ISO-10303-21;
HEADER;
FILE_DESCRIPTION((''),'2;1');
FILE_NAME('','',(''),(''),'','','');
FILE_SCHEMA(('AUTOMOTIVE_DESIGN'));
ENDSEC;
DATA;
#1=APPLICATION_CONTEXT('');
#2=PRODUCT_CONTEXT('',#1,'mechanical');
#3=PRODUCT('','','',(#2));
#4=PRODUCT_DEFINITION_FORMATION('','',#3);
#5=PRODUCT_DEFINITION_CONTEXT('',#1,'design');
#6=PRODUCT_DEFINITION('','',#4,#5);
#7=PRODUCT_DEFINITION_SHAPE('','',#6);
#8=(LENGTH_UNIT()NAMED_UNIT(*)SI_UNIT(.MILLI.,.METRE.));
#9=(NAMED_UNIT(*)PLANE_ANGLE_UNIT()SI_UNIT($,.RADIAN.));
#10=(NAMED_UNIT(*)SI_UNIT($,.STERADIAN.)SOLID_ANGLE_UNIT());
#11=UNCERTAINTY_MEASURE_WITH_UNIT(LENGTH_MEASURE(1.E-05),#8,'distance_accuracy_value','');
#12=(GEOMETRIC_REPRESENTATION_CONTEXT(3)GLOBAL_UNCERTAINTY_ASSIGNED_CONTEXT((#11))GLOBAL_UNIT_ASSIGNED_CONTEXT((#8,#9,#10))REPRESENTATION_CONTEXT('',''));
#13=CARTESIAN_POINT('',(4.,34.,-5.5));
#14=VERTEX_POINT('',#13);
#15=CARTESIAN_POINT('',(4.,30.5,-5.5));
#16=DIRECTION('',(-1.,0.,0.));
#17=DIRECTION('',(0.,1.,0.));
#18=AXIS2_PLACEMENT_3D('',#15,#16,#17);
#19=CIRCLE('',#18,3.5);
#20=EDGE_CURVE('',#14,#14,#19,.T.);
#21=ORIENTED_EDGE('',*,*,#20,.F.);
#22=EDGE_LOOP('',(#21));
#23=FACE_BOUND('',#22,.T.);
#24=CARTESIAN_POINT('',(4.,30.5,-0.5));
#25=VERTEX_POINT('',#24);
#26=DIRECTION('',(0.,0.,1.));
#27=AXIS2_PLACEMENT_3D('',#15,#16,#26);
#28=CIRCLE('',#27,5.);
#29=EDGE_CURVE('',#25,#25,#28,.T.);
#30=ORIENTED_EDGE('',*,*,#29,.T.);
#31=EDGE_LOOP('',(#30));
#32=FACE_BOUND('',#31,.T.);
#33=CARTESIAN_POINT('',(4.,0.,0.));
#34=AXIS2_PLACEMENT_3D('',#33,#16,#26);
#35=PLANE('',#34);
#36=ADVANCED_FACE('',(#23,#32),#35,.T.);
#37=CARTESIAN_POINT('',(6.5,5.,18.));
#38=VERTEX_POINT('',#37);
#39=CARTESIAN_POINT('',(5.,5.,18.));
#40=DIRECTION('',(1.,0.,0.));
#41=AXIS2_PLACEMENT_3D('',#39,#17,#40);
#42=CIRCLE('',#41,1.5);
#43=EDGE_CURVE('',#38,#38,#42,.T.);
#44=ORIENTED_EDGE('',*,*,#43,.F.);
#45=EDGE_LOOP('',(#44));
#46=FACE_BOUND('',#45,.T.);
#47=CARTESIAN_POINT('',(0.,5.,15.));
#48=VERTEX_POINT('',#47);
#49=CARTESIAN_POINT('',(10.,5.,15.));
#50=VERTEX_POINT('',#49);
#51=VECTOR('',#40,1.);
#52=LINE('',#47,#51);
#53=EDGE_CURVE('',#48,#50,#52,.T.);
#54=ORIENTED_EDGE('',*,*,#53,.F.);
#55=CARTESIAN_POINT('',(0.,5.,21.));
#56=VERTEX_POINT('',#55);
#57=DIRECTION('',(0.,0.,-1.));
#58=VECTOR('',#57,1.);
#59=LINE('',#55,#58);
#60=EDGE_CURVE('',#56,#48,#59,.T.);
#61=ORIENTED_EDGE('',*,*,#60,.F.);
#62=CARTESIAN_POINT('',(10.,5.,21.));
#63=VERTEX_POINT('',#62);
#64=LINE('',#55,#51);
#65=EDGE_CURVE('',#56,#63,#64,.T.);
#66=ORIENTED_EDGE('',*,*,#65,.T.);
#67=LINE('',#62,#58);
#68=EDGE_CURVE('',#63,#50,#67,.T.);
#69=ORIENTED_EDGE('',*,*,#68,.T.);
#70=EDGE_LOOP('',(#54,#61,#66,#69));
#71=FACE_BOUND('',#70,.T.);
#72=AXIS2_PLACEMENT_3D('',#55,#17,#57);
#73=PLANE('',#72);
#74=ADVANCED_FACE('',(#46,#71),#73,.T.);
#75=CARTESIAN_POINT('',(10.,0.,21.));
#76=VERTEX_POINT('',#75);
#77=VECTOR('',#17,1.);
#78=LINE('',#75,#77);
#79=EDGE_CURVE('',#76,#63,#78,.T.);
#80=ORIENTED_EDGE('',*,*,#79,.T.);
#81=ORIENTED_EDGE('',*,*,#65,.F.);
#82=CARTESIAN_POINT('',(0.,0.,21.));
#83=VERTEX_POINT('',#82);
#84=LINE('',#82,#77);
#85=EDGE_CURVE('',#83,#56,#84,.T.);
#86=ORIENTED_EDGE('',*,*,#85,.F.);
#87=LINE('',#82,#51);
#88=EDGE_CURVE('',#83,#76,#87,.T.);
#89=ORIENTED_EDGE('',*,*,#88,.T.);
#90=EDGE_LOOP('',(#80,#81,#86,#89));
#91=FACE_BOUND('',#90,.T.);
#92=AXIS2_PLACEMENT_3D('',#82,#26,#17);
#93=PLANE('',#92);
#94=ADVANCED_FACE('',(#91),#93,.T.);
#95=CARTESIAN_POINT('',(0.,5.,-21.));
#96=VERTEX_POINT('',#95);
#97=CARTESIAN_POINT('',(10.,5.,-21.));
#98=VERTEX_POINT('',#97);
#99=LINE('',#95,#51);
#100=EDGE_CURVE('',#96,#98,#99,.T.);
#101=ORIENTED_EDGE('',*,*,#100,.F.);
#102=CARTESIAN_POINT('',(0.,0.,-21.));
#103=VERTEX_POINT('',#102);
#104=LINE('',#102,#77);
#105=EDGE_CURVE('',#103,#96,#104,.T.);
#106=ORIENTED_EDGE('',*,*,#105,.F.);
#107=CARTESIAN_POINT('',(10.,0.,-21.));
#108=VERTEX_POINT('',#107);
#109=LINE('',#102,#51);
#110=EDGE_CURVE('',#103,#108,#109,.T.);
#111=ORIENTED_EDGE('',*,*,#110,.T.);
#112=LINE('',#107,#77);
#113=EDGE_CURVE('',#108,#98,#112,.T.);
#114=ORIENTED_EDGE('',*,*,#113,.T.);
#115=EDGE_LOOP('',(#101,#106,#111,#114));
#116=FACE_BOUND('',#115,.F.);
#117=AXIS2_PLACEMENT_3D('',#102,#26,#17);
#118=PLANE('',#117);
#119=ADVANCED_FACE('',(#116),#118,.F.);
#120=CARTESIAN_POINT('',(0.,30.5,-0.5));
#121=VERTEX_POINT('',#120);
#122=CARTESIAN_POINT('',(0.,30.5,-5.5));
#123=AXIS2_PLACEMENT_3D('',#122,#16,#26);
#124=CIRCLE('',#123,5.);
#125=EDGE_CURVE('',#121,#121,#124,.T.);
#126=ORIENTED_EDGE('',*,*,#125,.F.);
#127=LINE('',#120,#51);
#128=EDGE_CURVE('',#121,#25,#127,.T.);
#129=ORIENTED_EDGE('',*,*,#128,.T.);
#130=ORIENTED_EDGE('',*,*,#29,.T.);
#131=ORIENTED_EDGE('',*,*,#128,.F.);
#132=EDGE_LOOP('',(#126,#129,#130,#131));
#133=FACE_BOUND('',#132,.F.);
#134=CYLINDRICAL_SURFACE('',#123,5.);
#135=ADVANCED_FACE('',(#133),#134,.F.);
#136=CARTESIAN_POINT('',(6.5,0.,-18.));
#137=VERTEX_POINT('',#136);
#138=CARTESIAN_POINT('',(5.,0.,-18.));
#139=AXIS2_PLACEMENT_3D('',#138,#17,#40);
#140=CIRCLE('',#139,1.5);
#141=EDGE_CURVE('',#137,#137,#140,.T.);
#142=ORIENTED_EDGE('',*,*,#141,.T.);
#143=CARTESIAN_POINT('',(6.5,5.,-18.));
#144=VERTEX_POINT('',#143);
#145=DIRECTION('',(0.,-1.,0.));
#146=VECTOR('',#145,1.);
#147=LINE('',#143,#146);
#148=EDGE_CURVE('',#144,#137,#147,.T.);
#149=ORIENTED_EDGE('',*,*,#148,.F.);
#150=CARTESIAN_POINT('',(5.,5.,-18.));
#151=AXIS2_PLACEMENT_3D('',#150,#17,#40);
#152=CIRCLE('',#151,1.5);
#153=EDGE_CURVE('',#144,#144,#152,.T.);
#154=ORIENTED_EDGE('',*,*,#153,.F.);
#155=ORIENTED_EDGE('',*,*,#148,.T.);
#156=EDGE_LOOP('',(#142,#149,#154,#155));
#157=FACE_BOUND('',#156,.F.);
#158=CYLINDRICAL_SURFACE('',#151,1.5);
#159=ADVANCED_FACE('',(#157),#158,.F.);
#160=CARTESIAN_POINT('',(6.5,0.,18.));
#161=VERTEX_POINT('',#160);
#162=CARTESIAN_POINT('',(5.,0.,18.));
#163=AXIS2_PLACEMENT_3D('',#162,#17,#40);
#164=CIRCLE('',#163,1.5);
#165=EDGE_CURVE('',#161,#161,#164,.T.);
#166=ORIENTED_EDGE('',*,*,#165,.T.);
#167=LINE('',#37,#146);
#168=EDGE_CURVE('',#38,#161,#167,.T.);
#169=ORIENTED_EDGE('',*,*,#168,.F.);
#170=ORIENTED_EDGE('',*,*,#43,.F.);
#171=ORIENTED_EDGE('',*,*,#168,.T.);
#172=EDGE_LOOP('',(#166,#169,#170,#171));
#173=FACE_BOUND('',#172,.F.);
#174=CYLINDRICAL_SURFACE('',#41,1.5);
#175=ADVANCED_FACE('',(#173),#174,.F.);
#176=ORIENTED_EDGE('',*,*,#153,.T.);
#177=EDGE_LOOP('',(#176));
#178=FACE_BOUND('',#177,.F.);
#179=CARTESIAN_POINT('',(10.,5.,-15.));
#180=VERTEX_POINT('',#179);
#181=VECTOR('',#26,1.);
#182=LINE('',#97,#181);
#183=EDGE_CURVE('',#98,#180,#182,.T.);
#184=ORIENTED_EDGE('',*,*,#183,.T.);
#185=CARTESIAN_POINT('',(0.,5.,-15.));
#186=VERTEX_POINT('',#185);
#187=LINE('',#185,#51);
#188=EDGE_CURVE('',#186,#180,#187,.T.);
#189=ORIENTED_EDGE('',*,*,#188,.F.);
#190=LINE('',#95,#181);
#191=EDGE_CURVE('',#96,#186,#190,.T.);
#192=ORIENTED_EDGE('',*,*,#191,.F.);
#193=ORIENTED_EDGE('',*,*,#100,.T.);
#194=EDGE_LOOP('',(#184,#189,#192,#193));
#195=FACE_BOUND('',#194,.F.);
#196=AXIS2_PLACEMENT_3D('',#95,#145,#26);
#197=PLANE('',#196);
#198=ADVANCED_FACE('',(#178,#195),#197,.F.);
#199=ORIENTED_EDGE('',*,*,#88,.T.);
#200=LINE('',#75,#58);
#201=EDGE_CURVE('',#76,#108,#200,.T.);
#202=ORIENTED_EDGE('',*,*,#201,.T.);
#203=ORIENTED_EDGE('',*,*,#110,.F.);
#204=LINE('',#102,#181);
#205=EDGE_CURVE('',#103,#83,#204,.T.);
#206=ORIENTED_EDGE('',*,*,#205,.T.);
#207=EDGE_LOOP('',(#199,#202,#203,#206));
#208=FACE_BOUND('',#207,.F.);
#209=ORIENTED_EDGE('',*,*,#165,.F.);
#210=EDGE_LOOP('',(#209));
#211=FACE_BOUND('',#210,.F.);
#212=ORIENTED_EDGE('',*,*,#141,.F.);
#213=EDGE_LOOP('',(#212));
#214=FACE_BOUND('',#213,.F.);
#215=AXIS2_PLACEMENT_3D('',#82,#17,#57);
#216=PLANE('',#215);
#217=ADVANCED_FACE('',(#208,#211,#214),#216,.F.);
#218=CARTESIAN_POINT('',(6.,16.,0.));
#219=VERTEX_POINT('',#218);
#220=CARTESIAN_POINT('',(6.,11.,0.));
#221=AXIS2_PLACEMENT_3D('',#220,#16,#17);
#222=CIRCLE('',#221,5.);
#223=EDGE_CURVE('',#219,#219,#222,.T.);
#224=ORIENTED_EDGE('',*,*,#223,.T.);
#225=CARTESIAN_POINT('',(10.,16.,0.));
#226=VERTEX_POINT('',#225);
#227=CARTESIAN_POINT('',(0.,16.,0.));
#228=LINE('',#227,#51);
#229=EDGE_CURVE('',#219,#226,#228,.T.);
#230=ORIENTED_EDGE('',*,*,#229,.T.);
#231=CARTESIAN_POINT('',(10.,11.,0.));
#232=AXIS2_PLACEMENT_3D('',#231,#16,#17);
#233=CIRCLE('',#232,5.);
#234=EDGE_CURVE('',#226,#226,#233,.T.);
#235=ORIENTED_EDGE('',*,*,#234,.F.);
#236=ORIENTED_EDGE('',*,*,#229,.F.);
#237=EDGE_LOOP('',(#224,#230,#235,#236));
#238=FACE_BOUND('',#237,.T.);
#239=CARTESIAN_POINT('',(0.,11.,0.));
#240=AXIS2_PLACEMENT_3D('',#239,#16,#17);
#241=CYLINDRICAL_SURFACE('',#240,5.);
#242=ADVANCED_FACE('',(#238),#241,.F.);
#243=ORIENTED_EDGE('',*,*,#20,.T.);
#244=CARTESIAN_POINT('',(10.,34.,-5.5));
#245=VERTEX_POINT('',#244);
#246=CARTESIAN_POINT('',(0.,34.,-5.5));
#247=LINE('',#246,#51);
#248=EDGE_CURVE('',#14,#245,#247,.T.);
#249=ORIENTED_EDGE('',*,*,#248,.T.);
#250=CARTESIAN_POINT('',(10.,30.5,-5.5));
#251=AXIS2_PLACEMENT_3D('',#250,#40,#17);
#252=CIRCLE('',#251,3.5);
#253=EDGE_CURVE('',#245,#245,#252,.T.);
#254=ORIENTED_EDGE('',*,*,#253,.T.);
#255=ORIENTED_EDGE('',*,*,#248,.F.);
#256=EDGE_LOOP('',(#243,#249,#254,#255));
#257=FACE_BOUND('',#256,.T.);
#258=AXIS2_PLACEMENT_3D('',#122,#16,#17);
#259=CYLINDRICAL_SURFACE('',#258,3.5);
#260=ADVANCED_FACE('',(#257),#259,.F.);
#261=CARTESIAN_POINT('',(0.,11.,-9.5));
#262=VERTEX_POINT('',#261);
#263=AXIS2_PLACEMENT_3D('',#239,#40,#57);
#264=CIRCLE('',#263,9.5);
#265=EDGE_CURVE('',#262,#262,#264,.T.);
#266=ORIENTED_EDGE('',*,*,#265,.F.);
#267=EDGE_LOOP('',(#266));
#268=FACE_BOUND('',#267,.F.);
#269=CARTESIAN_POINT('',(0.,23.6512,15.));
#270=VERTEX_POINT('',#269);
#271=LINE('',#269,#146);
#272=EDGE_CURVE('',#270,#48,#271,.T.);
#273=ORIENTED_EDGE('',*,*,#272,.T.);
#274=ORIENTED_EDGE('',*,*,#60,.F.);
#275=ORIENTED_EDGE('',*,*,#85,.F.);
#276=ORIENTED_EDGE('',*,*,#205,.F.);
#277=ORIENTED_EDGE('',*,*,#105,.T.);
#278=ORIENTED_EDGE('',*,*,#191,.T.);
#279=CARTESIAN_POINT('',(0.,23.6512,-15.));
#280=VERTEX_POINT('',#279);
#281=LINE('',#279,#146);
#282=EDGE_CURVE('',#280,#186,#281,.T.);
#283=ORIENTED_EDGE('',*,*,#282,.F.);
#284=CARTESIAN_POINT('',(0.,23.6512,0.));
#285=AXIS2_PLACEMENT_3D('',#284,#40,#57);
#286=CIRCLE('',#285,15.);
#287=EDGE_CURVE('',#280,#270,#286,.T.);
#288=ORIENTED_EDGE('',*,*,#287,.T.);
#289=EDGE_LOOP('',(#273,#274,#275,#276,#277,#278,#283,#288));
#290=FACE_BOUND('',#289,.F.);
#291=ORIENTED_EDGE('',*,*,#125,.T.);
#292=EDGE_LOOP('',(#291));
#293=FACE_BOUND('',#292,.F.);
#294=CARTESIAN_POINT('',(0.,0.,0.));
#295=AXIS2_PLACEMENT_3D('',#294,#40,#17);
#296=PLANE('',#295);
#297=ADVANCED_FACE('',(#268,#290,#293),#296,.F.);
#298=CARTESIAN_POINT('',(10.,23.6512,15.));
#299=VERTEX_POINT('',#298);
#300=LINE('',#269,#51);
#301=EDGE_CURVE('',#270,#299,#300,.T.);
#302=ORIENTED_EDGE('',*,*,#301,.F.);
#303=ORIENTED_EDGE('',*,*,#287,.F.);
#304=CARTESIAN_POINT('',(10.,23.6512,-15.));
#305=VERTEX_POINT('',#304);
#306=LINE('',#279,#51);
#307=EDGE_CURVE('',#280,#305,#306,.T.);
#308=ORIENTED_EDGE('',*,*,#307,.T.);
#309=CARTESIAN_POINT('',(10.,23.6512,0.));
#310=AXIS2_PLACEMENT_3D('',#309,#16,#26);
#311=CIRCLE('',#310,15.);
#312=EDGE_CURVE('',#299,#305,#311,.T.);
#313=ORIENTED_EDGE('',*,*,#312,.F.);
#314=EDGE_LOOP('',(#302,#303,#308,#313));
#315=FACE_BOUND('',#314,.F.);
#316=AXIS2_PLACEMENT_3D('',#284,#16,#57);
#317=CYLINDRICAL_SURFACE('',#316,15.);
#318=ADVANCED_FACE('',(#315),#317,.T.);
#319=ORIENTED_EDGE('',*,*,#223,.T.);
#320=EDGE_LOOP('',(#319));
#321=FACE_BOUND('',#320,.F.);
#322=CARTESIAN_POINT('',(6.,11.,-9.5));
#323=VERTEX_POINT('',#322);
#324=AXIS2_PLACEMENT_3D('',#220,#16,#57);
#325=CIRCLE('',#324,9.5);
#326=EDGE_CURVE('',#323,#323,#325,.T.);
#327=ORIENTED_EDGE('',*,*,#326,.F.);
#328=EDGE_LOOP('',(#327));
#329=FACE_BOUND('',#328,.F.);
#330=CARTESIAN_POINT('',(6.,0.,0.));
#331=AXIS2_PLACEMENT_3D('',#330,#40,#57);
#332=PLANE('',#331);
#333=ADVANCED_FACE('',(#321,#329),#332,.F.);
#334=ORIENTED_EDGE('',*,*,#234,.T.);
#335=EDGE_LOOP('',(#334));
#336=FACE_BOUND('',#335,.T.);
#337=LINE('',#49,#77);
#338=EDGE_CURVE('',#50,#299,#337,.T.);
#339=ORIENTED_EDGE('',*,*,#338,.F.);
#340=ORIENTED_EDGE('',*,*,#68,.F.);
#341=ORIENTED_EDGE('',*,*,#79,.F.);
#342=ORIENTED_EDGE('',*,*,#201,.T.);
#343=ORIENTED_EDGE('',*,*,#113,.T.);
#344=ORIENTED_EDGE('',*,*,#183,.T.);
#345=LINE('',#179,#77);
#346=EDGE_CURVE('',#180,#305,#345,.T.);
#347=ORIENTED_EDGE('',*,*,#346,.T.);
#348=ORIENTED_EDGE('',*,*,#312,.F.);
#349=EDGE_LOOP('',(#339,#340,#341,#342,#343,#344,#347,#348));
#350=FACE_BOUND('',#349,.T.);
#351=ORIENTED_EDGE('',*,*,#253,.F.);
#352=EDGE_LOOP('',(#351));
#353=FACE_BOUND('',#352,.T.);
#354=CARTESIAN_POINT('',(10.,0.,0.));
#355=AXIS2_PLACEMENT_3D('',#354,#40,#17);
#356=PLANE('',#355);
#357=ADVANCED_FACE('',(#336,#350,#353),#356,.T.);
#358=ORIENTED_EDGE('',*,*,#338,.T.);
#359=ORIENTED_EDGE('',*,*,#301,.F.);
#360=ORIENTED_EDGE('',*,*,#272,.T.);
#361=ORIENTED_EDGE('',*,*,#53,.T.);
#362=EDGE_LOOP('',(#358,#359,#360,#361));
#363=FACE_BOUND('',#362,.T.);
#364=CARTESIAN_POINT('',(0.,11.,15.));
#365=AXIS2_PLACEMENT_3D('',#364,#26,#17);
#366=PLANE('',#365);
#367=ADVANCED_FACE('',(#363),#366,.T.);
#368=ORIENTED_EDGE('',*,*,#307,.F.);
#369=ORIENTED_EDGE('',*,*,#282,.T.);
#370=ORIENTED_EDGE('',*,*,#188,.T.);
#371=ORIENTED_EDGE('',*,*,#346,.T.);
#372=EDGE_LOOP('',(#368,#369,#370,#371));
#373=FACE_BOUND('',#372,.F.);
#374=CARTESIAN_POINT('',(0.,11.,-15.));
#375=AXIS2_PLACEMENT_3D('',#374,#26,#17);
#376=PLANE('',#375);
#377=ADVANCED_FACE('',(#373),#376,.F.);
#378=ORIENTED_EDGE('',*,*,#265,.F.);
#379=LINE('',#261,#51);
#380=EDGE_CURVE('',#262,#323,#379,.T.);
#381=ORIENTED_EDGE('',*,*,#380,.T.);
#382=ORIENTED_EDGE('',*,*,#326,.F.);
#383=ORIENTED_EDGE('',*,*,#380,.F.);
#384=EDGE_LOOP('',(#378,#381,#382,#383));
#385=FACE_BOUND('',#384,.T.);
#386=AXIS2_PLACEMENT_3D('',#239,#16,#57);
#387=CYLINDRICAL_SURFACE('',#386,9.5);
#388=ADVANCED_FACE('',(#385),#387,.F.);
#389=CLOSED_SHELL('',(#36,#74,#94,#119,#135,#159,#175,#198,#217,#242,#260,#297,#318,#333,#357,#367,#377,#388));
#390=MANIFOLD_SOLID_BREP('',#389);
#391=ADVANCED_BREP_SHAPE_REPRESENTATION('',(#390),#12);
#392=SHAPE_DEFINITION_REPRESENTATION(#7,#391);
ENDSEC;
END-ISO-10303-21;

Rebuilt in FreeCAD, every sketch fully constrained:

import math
import FreeCAD as App
import Part
import Sketcher

V = App.Vector

doc = App.newDocument("Part")
params = doc.addObject("Spreadsheet::Sheet", "Params")
for row, (alias, value) in enumerate([
    ("sketch1_diameter", "10 mm"),
    ("sketch1_diameter2", "7 mm"),
    ("sketch1_radius", "15 mm"),
    ("sketch1_width", "5 mm"),
    ("pad1_length", "10 mm"),
    ("sketch2_diameter", "19 mm"),
    ("pocket1_length", "6 mm"),
    ("sketch3_diameter", "3 mm"),
    ("pocket2_length", "5 mm"),
    ("sketch4_diameter", "10 mm"),
    ("pocket3_length", "4 mm"),
], start=1):
    params.set(f"A{row}", alias)
    params.set(f"B{row}", "=" + value)
    params.setAlias(f"B{row}", alias)

body = doc.addObject("PartDesign::Body", "Body")

# Sketch on YZ plane
sketch1 = doc.addObject("Sketcher::SketchObject", "Sketch")
body.addObject(sketch1)
sketch1.AttachmentSupport = (doc.YZ_Plane, [""])
sketch1.MapMode = "FlatFace"
sketch1.addGeometry(Part.LineSegment(V(23.6512, 15, 0), V(5, 15, 0)), False)
sketch1.addGeometry(Part.LineSegment(V(5, 15, 0), V(5, 21, 0)), False)
sketch1.addGeometry(Part.LineSegment(V(5, 21, 0), V(0, 21, 0)), False)
sketch1.addGeometry(Part.LineSegment(V(0, 21, 0), V(0, -21, 0)), False)
sketch1.addGeometry(Part.LineSegment(V(0, -21, 0), V(5, -21, 0)), False)
sketch1.addGeometry(Part.LineSegment(V(5, -21, 0), V(5, -15, 0)), False)
sketch1.addGeometry(Part.LineSegment(V(5, -15, 0), V(23.6512, -15, 0)), False)
sketch1.addGeometry(Part.ArcOfCircle(Part.Circle(V(23.6512, 0, 0), V(0, 0, 1), 15), math.radians(-90), math.radians(90)), False)
sketch1.addGeometry(Part.Circle(V(11, 0, 0), V(0, 0, 1), 5), False)
sketch1.addGeometry(Part.Circle(V(30.5, -5.5, 0), V(0, 0, 1), 3.5), False)
sketch1.addConstraint(Sketcher.Constraint("Coincident", 0, 2, 1, 1))
sketch1.addConstraint(Sketcher.Constraint("Coincident", 1, 2, 2, 1))
sketch1.addConstraint(Sketcher.Constraint("Coincident", 2, 2, 3, 1))
sketch1.addConstraint(Sketcher.Constraint("Coincident", 3, 2, 4, 1))
sketch1.addConstraint(Sketcher.Constraint("Coincident", 4, 2, 5, 1))
sketch1.addConstraint(Sketcher.Constraint("Coincident", 5, 2, 6, 1))
sketch1.addConstraint(Sketcher.Constraint("Tangent", 6, 2, 7, 1))
sketch1.addConstraint(Sketcher.Constraint("Tangent", 7, 2, 0, 1))
sketch1.addConstraint(Sketcher.Constraint("Horizontal", 0))
sketch1.addConstraint(Sketcher.Constraint("Vertical", 1))
sketch1.addConstraint(Sketcher.Constraint("Horizontal", 2))
sketch1.addConstraint(Sketcher.Constraint("Vertical", 3))
sketch1.addConstraint(Sketcher.Constraint("Horizontal", 4))
sketch1.addConstraint(Sketcher.Constraint("Vertical", 5))
sketch1.addConstraint(Sketcher.Constraint("Horizontal", 6))
sketch1.addConstraint(Sketcher.Constraint("Symmetric", 2, 2, 3, 2, -1, 1))
sketch1.addConstraint(Sketcher.Constraint("Symmetric", 0, 2, 5, 2, -1))
sketch1.addConstraint(Sketcher.Constraint("PointOnObject", 8, 3, -1))
sketch1.addConstraint(Sketcher.Constraint("Diameter", 8, 10.0))
sketch1.addConstraint(Sketcher.Constraint("Diameter", 9, 7.0))
sketch1.addConstraint(Sketcher.Constraint("Radius", 7, 15.0))
sketch1.addConstraint(Sketcher.Constraint("DistanceX", 2, 2, 2, 1, 5.0))
sketch1.addConstraint(Sketcher.Constraint("DistanceX", -1, 1, 8, 3, 11.0))
sketch1.addConstraint(Sketcher.Constraint("DistanceY", -1, 1, 1, 2, 21.0))
sketch1.addConstraint(Sketcher.Constraint("DistanceX", -1, 1, 9, 3, 30.5))
sketch1.addConstraint(Sketcher.Constraint("DistanceY", 9, 3, -1, 1, 5.5))
sketch1.addConstraint(Sketcher.Constraint("DistanceX", -1, 1, 7, 3, 23.6512))
sketch1.setExpression("Constraints[18]", "Params.sketch1_diameter")
sketch1.setExpression("Constraints[19]", "Params.sketch1_diameter2")
sketch1.setExpression("Constraints[20]", "Params.sketch1_radius")
sketch1.setExpression("Constraints[21]", "Params.sketch1_width")
pad1 = doc.addObject("PartDesign::Pad", "Pad")
body.addObject(pad1)
pad1.Profile = sketch1
pad1.setExpression("Length", "Params.pad1_length")

# Sketch on YZ plane
sketch2 = doc.addObject("Sketcher::SketchObject", "Sketch001")
body.addObject(sketch2)
sketch2.AttachmentSupport = (doc.YZ_Plane, [""])
sketch2.MapMode = "FlatFace"
sketch2.addGeometry(Part.Circle(V(11, 0, 0), V(0, 0, 1), 9.5), False)
sketch2.addConstraint(Sketcher.Constraint("PointOnObject", 0, 3, -1))
sketch2.addConstraint(Sketcher.Constraint("Diameter", 0, 19.0))
sketch2.addConstraint(Sketcher.Constraint("DistanceX", -1, 1, 0, 3, 11.0))
sketch2.setExpression("Constraints[1]", "Params.sketch2_diameter")
pocket1 = doc.addObject("PartDesign::Pocket", "Pocket")
body.addObject(pocket1)
pocket1.Profile = sketch2
pocket1.setExpression("Length", "Params.pocket1_length")
pocket1.Reversed = True

# Sketch on XZ plane
sketch3 = doc.addObject("Sketcher::SketchObject", "Sketch002")
body.addObject(sketch3)
sketch3.AttachmentSupport = (doc.XZ_Plane, [""])
sketch3.MapMode = "FlatFace"
sketch3.AttachmentOffset = App.Placement(V(0, 0, -5), App.Rotation())
sketch3.addGeometry(Part.Circle(V(5, -18, 0), V(0, 0, 1), 1.5), False)
sketch3.addGeometry(Part.Circle(V(5, 18, 0), V(0, 0, 1), 1.5), False)
sketch3.addConstraint(Sketcher.Constraint("Equal", 0, 1))
sketch3.addConstraint(Sketcher.Constraint("Symmetric", 0, 3, 1, 3, -1))
sketch3.addConstraint(Sketcher.Constraint("Diameter", 0, 3.0))
sketch3.addConstraint(Sketcher.Constraint("DistanceX", -1, 1, 0, 3, 5.0))
sketch3.addConstraint(Sketcher.Constraint("DistanceY", 0, 3, -1, 1, 18.0))
sketch3.setExpression("Constraints[2]", "Params.sketch3_diameter")
pocket2 = doc.addObject("PartDesign::Pocket", "Pocket001")
body.addObject(pocket2)
pocket2.Profile = sketch3
pocket2.setExpression("Length", "Params.pocket2_length")
pocket2.Reversed = True

# Sketch on YZ plane
sketch4 = doc.addObject("Sketcher::SketchObject", "Sketch003")
body.addObject(sketch4)
sketch4.AttachmentSupport = (doc.YZ_Plane, [""])
sketch4.MapMode = "FlatFace"
sketch4.addGeometry(Part.Circle(V(30.5, -5.5, 0), V(0, 0, 1), 5), False)
sketch4.addConstraint(Sketcher.Constraint("Diameter", 0, 10.0))
sketch4.addConstraint(Sketcher.Constraint("DistanceX", -1, 1, 0, 3, 30.5))
sketch4.addConstraint(Sketcher.Constraint("DistanceY", 0, 3, -1, 1, 5.5))
sketch4.setExpression("Constraints[0]", "Params.sketch4_diameter")
pocket3 = doc.addObject("PartDesign::Pocket", "Pocket002")
body.addObject(pocket3)
pocket3.Profile = sketch4
pocket3.setExpression("Length", "Params.pocket3_length")
pocket3.Reversed = True

doc.recompute()
